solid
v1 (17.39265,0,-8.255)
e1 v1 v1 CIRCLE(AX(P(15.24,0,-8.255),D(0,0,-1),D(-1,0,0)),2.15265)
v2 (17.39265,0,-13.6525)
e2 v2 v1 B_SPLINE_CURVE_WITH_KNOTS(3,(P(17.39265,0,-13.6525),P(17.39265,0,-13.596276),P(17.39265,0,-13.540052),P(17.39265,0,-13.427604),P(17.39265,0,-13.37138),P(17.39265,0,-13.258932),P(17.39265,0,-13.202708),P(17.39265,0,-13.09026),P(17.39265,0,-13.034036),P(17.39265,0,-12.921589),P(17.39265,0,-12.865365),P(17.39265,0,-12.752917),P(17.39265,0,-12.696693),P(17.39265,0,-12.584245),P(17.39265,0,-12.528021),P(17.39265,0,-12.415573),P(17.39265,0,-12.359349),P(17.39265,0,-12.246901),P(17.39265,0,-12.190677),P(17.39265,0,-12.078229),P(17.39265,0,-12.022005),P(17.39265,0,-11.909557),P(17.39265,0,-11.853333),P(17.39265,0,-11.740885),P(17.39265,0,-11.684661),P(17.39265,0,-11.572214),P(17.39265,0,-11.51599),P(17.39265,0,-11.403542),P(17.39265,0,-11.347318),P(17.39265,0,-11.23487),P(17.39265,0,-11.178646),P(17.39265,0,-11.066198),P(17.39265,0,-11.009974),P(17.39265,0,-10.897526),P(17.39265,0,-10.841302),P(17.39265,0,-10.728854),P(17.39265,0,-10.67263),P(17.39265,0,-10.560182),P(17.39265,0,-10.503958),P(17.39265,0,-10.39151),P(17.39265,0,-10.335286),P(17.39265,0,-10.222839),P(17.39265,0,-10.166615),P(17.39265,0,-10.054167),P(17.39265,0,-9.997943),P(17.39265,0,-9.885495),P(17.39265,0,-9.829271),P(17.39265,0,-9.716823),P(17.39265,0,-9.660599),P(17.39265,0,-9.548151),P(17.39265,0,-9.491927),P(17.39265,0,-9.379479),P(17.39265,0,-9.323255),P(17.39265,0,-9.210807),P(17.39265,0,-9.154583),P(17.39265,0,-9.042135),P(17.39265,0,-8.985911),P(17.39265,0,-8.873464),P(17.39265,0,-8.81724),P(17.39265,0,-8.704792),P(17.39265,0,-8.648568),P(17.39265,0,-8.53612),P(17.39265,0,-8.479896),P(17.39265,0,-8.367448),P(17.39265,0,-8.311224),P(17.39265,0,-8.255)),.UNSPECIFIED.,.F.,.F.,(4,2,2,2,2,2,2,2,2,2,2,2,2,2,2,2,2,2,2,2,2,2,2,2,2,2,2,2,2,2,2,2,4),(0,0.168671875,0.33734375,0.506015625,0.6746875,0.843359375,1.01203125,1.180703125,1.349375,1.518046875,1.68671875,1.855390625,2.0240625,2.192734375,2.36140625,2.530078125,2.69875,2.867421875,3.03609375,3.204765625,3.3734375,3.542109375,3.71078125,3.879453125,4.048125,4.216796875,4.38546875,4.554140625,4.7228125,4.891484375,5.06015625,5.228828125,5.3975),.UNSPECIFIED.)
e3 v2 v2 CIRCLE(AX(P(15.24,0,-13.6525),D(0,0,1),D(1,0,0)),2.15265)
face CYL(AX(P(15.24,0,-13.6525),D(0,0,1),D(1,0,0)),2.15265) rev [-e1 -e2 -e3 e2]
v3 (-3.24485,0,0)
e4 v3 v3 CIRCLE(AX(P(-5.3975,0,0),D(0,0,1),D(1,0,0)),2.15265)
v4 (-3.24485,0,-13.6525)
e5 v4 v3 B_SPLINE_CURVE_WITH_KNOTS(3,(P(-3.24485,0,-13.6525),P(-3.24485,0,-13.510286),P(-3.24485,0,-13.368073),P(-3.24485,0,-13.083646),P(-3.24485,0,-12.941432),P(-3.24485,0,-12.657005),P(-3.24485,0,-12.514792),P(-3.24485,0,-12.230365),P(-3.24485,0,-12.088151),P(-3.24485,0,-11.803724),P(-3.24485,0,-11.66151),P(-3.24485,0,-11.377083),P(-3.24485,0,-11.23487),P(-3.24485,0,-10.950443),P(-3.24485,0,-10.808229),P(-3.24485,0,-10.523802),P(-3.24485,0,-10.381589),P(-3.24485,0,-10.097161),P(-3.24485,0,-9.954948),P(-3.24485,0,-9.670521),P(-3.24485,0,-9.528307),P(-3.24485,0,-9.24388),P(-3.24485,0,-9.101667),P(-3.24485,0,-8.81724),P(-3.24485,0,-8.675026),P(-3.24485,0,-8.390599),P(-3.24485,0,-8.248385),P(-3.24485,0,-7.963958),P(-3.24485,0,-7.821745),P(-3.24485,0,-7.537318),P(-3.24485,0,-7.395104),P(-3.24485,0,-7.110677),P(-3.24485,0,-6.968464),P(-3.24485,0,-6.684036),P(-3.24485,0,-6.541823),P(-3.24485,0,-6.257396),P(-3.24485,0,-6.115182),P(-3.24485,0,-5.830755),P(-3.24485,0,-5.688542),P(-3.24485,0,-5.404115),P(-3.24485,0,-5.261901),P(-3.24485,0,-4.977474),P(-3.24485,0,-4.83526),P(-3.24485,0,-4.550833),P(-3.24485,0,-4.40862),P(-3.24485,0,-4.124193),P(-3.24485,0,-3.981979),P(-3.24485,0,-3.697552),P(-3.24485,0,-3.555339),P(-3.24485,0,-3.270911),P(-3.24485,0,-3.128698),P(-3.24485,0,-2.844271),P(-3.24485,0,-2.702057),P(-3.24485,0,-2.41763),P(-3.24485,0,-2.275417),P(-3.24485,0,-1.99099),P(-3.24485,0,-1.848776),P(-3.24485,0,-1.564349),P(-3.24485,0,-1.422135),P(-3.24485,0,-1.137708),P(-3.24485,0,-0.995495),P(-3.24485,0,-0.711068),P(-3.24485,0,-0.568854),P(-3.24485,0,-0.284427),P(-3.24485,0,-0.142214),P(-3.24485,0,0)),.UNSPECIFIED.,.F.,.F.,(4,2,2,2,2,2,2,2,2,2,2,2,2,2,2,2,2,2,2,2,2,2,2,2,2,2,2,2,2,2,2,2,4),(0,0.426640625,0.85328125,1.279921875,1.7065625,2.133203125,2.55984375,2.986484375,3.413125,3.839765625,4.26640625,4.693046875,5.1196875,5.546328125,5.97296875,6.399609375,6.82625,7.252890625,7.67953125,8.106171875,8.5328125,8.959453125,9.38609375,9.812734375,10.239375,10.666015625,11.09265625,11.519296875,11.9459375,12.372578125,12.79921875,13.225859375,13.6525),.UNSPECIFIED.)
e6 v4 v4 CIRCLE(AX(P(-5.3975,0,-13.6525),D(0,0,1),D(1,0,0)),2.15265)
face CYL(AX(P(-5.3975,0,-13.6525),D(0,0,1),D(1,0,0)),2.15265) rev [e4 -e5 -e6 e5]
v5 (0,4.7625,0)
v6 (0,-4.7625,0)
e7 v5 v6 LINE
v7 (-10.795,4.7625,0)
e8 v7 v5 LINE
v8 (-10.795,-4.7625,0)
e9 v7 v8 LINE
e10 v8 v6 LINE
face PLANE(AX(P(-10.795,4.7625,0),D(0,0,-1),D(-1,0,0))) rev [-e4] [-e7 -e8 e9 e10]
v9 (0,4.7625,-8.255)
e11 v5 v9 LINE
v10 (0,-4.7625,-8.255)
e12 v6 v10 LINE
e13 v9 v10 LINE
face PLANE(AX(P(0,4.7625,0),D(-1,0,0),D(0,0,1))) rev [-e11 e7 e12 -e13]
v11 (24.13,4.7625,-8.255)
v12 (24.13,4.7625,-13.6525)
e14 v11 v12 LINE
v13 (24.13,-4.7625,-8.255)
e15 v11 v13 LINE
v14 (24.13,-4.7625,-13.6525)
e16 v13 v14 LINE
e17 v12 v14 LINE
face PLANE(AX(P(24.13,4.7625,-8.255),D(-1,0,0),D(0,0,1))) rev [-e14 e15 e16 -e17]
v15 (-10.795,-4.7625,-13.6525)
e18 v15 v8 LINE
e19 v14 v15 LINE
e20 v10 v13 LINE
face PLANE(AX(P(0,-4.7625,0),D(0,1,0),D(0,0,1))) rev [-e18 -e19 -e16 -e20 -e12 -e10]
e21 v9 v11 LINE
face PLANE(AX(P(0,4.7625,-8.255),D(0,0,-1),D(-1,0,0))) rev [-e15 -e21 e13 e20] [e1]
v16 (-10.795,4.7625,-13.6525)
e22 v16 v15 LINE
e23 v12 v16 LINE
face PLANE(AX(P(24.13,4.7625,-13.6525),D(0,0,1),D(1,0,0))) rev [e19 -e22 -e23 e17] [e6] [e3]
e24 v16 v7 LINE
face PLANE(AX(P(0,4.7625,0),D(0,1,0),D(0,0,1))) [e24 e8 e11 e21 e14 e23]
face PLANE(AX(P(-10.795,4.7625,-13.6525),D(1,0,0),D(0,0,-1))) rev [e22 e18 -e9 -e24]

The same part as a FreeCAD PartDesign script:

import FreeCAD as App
import Part
import Sketcher
Q = App.Units.Quantity


def add_polygon(sketch, points):
    """Adds a closed chain of lines whose ends are joined by coincident constraints."""
    first, n = sketch.GeometryCount, len(points)
    for a, b in zip(points, points[1:] + points[:1]):
        sketch.addGeometry(Part.LineSegment(App.Vector(*a, 0), App.Vector(*b, 0)), False)
    for i in range(n):
        sketch.addConstraint(Sketcher.Constraint("Coincident", first + i, 2, first + (i + 1) % n, 1))

doc = App.newDocument("Part")
body = doc.addObject("PartDesign::Body", "Body")

sketch1 = body.newObject("Sketcher::SketchObject", "Sketch")
sketch1.AttachmentSupport = (doc.getObject("XZ_Plane"), [""])
sketch1.MapMode = "FlatFace"
add_polygon(sketch1, [(0, 0), (0, -8), (24, -8), (24, -14), (-11, -14), (-11, 0)])
sketch1.addConstraint(Sketcher.Constraint("Vertical", 0))
sketch1.addConstraint(Sketcher.Constraint("Horizontal", 1))
sketch1.addConstraint(Sketcher.Constraint("Vertical", 2))
sketch1.addConstraint(Sketcher.Constraint("Horizontal", 3))
sketch1.addConstraint(Sketcher.Constraint("Vertical", 4))
sketch1.addConstraint(Sketcher.Constraint("Horizontal", 5))
sketch1.addConstraint(Sketcher.Constraint("Coincident", 5, 2, -1, 1))
sketch1.addConstraint(Sketcher.Constraint("DistanceX", 1, 1, 1, 2, Q("0.95 in")))
sketch1.addConstraint(Sketcher.Constraint("DistanceX", 3, 2, 3, 1, Q("1.375 in")))
sketch1.addConstraint(Sketcher.Constraint("DistanceY", 0, 2, 0, 1, Q("0.325 in")))
sketch1.addConstraint(Sketcher.Constraint("DistanceY", 2, 2, 2, 1, Q("0.2125 in")))
pad1 = body.newObject("PartDesign::Pad", "Pad")
pad1.Profile = sketch1
pad1.Length = Q("0.375 in")
pad1.Midplane = True

sketch2 = body.newObject("Sketcher::SketchObject", "Sketch001")
sketch2.AttachmentSupport = (doc.getObject("XY_Plane"), [""])
sketch2.MapMode = "FlatFace"
sketch2.addGeometry(Part.Circle(App.Vector(15.2, 0, 0), App.Vector(0, 0, 1), 2.2), False)
sketch2.addGeometry(Part.Circle(App.Vector(-5.4, 0, 0), App.Vector(0, 0, 1), 2.2), False)
sketch2.addConstraint(Sketcher.Constraint("Equal", 0, 1))
sketch2.addConstraint(Sketcher.Constraint("PointOnObject", 0, 3, -1))
sketch2.addConstraint(Sketcher.Constraint("PointOnObject", 1, 3, -1))
sketch2.addConstraint(Sketcher.Constraint("Diameter", 0, Q("0.1695 in")))
sketch2.addConstraint(Sketcher.Constraint("DistanceX", -1, 1, 0, 3, Q("0.6 in")))
sketch2.addConstraint(Sketcher.Constraint("DistanceX", 1, 3, 0, 3, Q("0.8125 in")))
pocket1 = body.newObject("PartDesign::Pocket", "Pocket")
pocket1.Profile = sketch2
pocket1.Type = "ThroughAll"

doc.recompute()
